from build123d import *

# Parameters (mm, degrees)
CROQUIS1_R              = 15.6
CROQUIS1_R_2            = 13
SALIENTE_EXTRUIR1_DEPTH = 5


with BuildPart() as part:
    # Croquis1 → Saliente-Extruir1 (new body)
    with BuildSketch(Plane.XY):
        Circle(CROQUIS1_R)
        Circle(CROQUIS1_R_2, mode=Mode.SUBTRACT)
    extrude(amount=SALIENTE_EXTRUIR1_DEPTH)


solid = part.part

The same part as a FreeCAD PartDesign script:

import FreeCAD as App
import Part
import Sketcher
Q = App.Units.Quantity

doc = App.newDocument("Part")
body = doc.addObject("PartDesign::Body", "Body")

sketch1 = doc.addObject("Sketcher::SketchObject", "Sketch")
body.addObject(sketch1)
sketch1.AttachmentSupport = (doc.XY_Plane, [""])
sketch1.MapMode = "FlatFace"
sketch1.addGeometry(Part.Circle(App.Vector(0, 0, 0), App.Vector(0, 0, 1), 16), False)
sketch1.addGeometry(Part.Circle(App.Vector(0, 0, 0), App.Vector(0, 0, 1), 13), False)
sketch1.addConstraint(Sketcher.Constraint("Coincident", 0, 3, -1, 1))
sketch1.addConstraint(Sketcher.Constraint("Coincident", 1, 3, -1, 1))
sketch1.addConstraint(Sketcher.Constraint("Diameter", 1, Q("26 mm")))
sketch1.addConstraint(Sketcher.Constraint("Diameter", 0, Q("31.2 mm")))
pad1 = doc.addObject("PartDesign::Pad", "Pad")
body.addObject(pad1)
pad1.Profile = sketch1
pad1.Length = 5

doc.recompute()
